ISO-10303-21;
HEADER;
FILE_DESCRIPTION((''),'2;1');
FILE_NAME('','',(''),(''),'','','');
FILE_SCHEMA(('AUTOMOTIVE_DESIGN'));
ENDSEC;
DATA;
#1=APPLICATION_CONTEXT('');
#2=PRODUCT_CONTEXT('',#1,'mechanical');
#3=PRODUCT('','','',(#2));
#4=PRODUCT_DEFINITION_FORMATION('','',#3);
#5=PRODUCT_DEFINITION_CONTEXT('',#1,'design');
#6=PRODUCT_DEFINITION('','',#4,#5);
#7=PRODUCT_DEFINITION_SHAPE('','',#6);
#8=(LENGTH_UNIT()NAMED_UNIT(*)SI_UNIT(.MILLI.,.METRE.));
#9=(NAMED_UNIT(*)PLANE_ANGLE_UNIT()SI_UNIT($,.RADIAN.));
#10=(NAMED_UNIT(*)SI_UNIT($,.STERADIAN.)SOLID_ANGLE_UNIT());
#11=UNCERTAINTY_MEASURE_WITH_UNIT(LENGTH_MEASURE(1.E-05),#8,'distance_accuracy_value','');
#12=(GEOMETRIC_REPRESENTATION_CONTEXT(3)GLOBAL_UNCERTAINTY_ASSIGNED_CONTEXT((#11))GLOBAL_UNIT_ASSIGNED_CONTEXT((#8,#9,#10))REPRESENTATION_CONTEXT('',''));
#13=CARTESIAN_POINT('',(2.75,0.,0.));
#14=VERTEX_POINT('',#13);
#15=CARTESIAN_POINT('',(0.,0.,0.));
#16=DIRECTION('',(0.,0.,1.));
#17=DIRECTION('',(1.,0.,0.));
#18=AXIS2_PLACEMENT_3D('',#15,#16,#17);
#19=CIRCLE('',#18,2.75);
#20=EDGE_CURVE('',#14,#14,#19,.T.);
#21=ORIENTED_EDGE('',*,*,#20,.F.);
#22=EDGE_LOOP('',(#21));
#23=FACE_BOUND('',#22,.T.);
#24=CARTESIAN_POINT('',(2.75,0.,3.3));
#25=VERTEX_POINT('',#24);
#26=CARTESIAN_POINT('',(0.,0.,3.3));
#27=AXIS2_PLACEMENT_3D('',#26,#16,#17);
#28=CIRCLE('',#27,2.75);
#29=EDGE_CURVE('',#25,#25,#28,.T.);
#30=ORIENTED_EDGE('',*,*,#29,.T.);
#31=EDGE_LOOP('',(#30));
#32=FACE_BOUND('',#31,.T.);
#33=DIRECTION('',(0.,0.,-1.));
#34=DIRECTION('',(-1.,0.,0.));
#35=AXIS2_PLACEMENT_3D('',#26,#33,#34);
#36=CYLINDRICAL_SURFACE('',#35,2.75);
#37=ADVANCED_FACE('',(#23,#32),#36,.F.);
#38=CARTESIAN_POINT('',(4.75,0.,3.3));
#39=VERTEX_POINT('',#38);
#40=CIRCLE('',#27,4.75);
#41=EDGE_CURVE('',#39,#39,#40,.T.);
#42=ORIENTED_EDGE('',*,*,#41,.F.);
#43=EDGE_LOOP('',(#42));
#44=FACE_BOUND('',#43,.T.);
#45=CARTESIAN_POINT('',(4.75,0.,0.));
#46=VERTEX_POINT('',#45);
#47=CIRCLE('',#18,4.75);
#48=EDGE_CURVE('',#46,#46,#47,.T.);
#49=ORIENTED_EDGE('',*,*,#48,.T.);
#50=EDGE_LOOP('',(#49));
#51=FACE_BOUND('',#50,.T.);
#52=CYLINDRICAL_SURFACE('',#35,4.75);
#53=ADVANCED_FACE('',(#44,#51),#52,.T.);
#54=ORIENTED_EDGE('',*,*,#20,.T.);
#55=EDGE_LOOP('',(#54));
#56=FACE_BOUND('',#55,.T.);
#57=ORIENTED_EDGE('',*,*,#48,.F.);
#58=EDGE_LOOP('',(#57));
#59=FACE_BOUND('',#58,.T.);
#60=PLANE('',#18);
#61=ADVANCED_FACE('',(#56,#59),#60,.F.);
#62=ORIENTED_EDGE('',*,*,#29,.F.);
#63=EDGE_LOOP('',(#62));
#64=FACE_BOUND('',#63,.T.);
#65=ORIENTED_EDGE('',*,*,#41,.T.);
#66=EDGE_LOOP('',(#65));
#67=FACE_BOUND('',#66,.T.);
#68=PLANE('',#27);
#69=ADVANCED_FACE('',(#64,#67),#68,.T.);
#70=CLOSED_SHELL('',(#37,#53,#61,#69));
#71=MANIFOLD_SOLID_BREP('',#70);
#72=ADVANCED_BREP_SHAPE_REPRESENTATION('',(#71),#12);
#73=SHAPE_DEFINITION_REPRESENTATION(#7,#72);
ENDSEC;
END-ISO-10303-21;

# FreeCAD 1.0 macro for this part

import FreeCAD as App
import Part
import Sketcher

doc = App.newDocument("Part")
body = doc.addObject("PartDesign::Body", "Body")

# Sketch on XY plane
sketch1 = doc.addObject("Sketcher::SketchObject", "Sketch")
body.addObject(sketch1)
sketch1.AttachmentSupport = (doc.XY_Plane, [""])
sketch1.MapMode = "FlatFace"
sketch1.addGeometry([
    Part.Circle(App.Vector(0, 0, 0), App.Vector(0, 0, 1), 4.75),
    Part.Circle(App.Vector(0, 0, 0), App.Vector(0, 0, 1), 2.75),
], False)
sketch1.addConstraint([
    Sketcher.Constraint("Coincident", 0, 3, -1, 1),
    Sketcher.Constraint("Coincident", 1, 3, -1, 1),
    Sketcher.Constraint("Diameter", 0, 9.5),
    Sketcher.Constraint("Diameter", 1, 5.5),
])
pad1 = doc.addObject("PartDesign::Pad", "Pad")
body.addObject(pad1)
pad1.Profile = sketch1
pad1.Length = 3.3

doc.recompute()
